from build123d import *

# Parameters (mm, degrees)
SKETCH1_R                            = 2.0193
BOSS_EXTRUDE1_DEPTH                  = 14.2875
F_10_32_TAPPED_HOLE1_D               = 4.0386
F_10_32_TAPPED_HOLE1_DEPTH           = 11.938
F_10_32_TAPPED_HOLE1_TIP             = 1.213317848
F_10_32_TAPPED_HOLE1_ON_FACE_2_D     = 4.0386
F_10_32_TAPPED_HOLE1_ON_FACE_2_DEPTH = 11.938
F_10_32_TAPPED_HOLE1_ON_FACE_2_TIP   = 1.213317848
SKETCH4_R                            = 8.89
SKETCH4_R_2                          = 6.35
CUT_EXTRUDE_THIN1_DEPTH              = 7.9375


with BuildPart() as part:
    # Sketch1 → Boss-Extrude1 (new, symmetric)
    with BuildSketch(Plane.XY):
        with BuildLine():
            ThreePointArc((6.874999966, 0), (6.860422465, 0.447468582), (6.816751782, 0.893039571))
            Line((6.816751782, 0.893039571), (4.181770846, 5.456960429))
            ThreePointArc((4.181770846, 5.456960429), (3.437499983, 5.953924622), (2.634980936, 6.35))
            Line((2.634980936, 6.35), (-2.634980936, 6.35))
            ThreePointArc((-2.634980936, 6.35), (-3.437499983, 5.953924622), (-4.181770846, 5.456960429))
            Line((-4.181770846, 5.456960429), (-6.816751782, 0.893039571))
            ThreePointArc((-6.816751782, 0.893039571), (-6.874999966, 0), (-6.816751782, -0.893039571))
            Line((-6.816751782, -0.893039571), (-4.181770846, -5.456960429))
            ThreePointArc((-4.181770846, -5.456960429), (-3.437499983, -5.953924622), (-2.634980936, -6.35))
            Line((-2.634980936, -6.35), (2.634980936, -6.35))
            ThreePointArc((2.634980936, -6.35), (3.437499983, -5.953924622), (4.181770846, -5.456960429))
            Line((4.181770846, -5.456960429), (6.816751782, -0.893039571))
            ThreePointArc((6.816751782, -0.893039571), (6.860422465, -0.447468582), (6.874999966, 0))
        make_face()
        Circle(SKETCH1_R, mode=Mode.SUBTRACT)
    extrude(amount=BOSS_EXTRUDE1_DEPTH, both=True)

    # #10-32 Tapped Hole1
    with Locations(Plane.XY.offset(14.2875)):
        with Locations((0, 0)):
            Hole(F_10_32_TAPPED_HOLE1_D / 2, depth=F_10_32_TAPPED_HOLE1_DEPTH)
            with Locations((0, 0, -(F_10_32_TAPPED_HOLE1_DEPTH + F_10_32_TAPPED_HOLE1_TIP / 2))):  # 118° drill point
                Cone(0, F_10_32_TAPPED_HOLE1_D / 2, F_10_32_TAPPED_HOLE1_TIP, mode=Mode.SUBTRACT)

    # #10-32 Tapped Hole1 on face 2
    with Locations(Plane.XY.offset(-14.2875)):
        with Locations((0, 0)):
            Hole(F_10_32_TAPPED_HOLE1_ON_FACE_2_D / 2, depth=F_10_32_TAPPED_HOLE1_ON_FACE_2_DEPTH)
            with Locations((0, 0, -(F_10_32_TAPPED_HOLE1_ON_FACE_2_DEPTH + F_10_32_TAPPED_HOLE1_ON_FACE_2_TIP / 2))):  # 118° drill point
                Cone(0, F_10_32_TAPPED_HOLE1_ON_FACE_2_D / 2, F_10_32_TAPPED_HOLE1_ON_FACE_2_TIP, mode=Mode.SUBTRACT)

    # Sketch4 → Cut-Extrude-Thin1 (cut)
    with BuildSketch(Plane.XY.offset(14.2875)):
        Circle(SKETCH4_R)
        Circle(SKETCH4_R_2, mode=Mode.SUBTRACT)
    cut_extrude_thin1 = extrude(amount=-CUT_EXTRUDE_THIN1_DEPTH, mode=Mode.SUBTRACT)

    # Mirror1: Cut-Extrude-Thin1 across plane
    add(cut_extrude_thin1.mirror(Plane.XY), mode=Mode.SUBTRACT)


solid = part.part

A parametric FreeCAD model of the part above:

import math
import FreeCAD as App
import Part
import Sketcher
Q = App.Units.Quantity

doc = App.newDocument("Part")
params = doc.addObject("Spreadsheet::Sheet", "Params")
for row, (alias, value) in enumerate([
    ("sketch1_diameter", "0.159 in"),
    ("pad1_length", "1.125 in"),
    ("sketch2_diameter", "0.159 in"),
    ("hole_diameter", "0.159 in"),
    ("hole_depth", "0.47 in"),
    ("sketch3_diameter", "0.159 in"),
    ("hole2_diameter", "0.159 in"),
    ("hole2_depth", "0.47 in"),
    ("sketch4_diameter", "0.7 in"),
    ("sketch4_diameter2", "0.5 in"),
    ("pocket1_length", "0.3125 in"),
], start=1):
    params.set(f"A{row}", alias)
    params.set(f"B{row}", "=" + value)
    params.setAlias(f"B{row}", alias)

body = doc.addObject("PartDesign::Body", "Body")

# Sketch on XY plane
sketch1 = body.newObject("Sketcher::SketchObject", "Sketch")
sketch1.AttachmentSupport = (doc.getObject("XY_Plane"), [""])
sketch1.MapMode = "FlatFace"
sketch1.addGeometry(Part.ArcOfCircle(Part.Circle(App.Vector(0, 0, 0), App.Vector(0, 0, 1), 6.9), math.radians(0), math.radians(7.46)), False)
sketch1.addGeometry(Part.LineSegment(App.Vector(6.8, 0.9, 0), App.Vector(4.2, 5.5, 0)), False)
sketch1.addGeometry(Part.ArcOfCircle(Part.Circle(App.Vector(0, 0, 0), App.Vector(0, 0, 1), 6.9), math.radians(52.54), math.radians(67.46)), False)
sketch1.addGeometry(Part.LineSegment(App.Vector(2.6, 6.3, 0), App.Vector(-2.6, 6.3, 0)), False)
sketch1.addGeometry(Part.ArcOfCircle(Part.Circle(App.Vector(0, 0, 0), App.Vector(0, 0, 1), 6.9), math.radians(112.54), math.radians(127.46)), False)
sketch1.addGeometry(Part.LineSegment(App.Vector(-4.2, 5.5, 0), App.Vector(-6.8, 0.9, 0)), False)
sketch1.addGeometry(Part.ArcOfCircle(Part.Circle(App.Vector(0, 0, 0), App.Vector(0, 0, 1), 6.9), math.radians(172.54), math.radians(187.46)), False)
sketch1.addGeometry(Part.LineSegment(App.Vector(-6.8, -0.9, 0), App.Vector(-4.2, -5.5, 0)), False)
sketch1.addGeometry(Part.ArcOfCircle(Part.Circle(App.Vector(0, 0, 0), App.Vector(0, 0, 1), 6.9), math.radians(-127.46), math.radians(-112.54)), False)
sketch1.addGeometry(Part.LineSegment(App.Vector(-2.6, -6.3, 0), App.Vector(2.6, -6.3, 0)), False)
sketch1.addGeometry(Part.ArcOfCircle(Part.Circle(App.Vector(0, 0, 0), App.Vector(0, 0, 1), 6.9), math.radians(-67.46), math.radians(-52.54)), False)
sketch1.addGeometry(Part.LineSegment(App.Vector(4.2, -5.5, 0), App.Vector(6.8, -0.9, 0)), False)
sketch1.addGeometry(Part.ArcOfCircle(Part.Circle(App.Vector(0, 0, 0), App.Vector(0, 0, 1), 6.9), math.radians(-7.46), math.radians(0)), False)
sketch1.addGeometry(Part.Circle(App.Vector(0, 0, 0), App.Vector(0, 0, 1), 2), False)
sketch1.addConstraint(Sketcher.Constraint("Coincident", 0, 2, 1, 1))
sketch1.addConstraint(Sketcher.Constraint("Coincident", 1, 2, 2, 1))
sketch1.addConstraint(Sketcher.Constraint("Coincident", 2, 2, 3, 1))
sketch1.addConstraint(Sketcher.Constraint("Coincident", 3, 2, 4, 1))
sketch1.addConstraint(Sketcher.Constraint("Coincident", 4, 2, 5, 1))
sketch1.addConstraint(Sketcher.Constraint("Coincident", 5, 2, 6, 1))
sketch1.addConstraint(Sketcher.Constraint("Coincident", 6, 2, 7, 1))
sketch1.addConstraint(Sketcher.Constraint("Coincident", 7, 2, 8, 1))
sketch1.addConstraint(Sketcher.Constraint("Coincident", 8, 2, 9, 1))
sketch1.addConstraint(Sketcher.Constraint("Coincident", 9, 2, 10, 1))
sketch1.addConstraint(Sketcher.Constraint("Coincident", 10, 2, 11, 1))
sketch1.addConstraint(Sketcher.Constraint("Coincident", 11, 2, 12, 1))
sketch1.addConstraint(Sketcher.Constraint("Tangent", 12, 2, 0, 1))
sketch1.addConstraint(Sketcher.Constraint("Horizontal", 3))
sketch1.addConstraint(Sketcher.Constraint("Horizontal", 9))
sketch1.addConstraint(Sketcher.Constraint("Coincident", 0, 3, -1, 1))
sketch1.addConstraint(Sketcher.Constraint("Coincident", 2, 3, -1, 1))
sketch1.addConstraint(Sketcher.Constraint("Coincident", 4, 3, -1, 1))
sketch1.addConstraint(Sketcher.Constraint("Coincident", 6, 3, -1, 1))
sketch1.addConstraint(Sketcher.Constraint("Coincident", 8, 3, -1, 1))
sketch1.addConstraint(Sketcher.Constraint("Coincident", 10, 3, -1, 1))
sketch1.addConstraint(Sketcher.Constraint("Coincident", 13, 3, -1, 1))
sketch1.addConstraint(Sketcher.Constraint("Equal", 0, 2))
sketch1.addConstraint(Sketcher.Constraint("Equal", 2, 4))
sketch1.addConstraint(Sketcher.Constraint("Equal", 4, 6))
sketch1.addConstraint(Sketcher.Constraint("Equal", 6, 8))
sketch1.addConstraint(Sketcher.Constraint("Equal", 8, 10))
sketch1.addConstraint(Sketcher.Constraint("Equal", 10, 12))
sketch1.addConstraint(Sketcher.Constraint("PointOnObject", 12, 2, -1))
sketch1.addConstraint(Sketcher.Constraint("Parallel", 1, 7))
sketch1.addConstraint(Sketcher.Constraint("Parallel", 5, 11))
sketch1.addConstraint(Sketcher.Constraint("Horizontal", 1, 2, 4, 2))
sketch1.addConstraint(Sketcher.Constraint("Horizontal", 0, 2, 5, 2))
sketch1.addConstraint(Sketcher.Constraint("Horizontal", 7, 2, 10, 2))
sketch1.addConstraint(Sketcher.Constraint("Vertical", 5, 2, 6, 2))
sketch1.addConstraint(Sketcher.Constraint("Vertical", 3, 2, 8, 2))
sketch1.addConstraint(Sketcher.Constraint("Diameter", 13, Q("0.159 in")))
sketch1.addConstraint(Sketcher.Constraint("Angle", 1, Q("120 deg")))
sketch1.addConstraint(Sketcher.Constraint("DistanceY", -1, 1, 2, 2, Q("0.25 in")))
sketch1.addConstraint(Sketcher.Constraint("Radius", 0, 6.875))
sketch1.addConstraint(Sketcher.Constraint("Distance", 1, 5.269962))
sketch1.setExpression("Constraints[36]", "Params.sketch1_diameter")
pad1 = body.newObject("PartDesign::Pad", "Pad")
pad1.Profile = sketch1
pad1.setExpression("Length", "Params.pad1_length")
pad1.Midplane = True

# Sketch on XY plane
sketch2 = body.newObject("Sketcher::SketchObject", "Sketch001")
sketch2.AttachmentSupport = (doc.getObject("XY_Plane"), [""])
sketch2.MapMode = "FlatFace"
sketch2.AttachmentOffset = App.Placement(App.Vector(0, 0, 0.5625 * 25.4), App.Rotation())
sketch2.addGeometry(Part.Circle(App.Vector(0, 0, 0), App.Vector(0, 0, 1), 2), False)
sketch2.addConstraint(Sketcher.Constraint("Coincident", 0, 3, -1, 1))
sketch2.addConstraint(Sketcher.Constraint("Diameter", 0, Q("0.159 in")))
sketch2.setExpression("Constraints[1]", "Params.sketch2_diameter")
doc.recompute()
hole = body.newObject("PartDesign::Hole", "Hole")
hole.Profile = sketch2
hole.ThreadType = "None"
hole.setExpression("Diameter", "Params.hole_diameter")
hole.DepthType = "Dimension"
hole.setExpression("Depth", "Params.hole_depth")
hole.DrillPoint = "Angled"
hole.DrillPointAngle = 118

# Sketch on XY plane
sketch3 = body.newObject("Sketcher::SketchObject", "Sketch002")
sketch3.AttachmentSupport = (doc.getObject("XY_Plane"), [""])
sketch3.MapMode = "FlatFace"
sketch3.AttachmentOffset = App.Placement(App.Vector(0, 0, -0.5625 * 25.4), App.Rotation())
sketch3.addGeometry(Part.Circle(App.Vector(0, 0, 0), App.Vector(0, 0, 1), 2), False)
sketch3.addConstraint(Sketcher.Constraint("Coincident", 0, 3, -1, 1))
sketch3.addConstraint(Sketcher.Constraint("Diameter", 0, Q("0.159 in")))
sketch3.setExpression("Constraints[1]", "Params.sketch3_diameter")
doc.recompute()
hole2 = body.newObject("PartDesign::Hole", "Hole001")
hole2.Profile = sketch3
hole2.ThreadType = "None"
hole2.setExpression("Diameter", "Params.hole2_diameter")
hole2.DepthType = "Dimension"
hole2.setExpression("Depth", "Params.hole2_depth")
hole2.DrillPoint = "Angled"
hole2.DrillPointAngle = 118

# Sketch on XY plane
sketch4 = body.newObject("Sketcher::SketchObject", "Sketch003")
sketch4.AttachmentSupport = (doc.getObject("XY_Plane"), [""])
sketch4.MapMode = "FlatFace"
sketch4.AttachmentOffset = App.Placement(App.Vector(0, 0, 0.5625 * 25.4), App.Rotation())
sketch4.addGeometry(Part.Circle(App.Vector(0, 0, 0), App.Vector(0, 0, 1), 9), False)
sketch4.addGeometry(Part.Circle(App.Vector(0, 0, 0), App.Vector(0, 0, 1), 6), False)
sketch4.addConstraint(Sketcher.Constraint("Coincident", 0, 3, -1, 1))
sketch4.addConstraint(Sketcher.Constraint("Coincident", 1, 3, -1, 1))
sketch4.addConstraint(Sketcher.Constraint("Diameter", 0, Q("0.7 in")))
sketch4.addConstraint(Sketcher.Constraint("Diameter", 1, Q("0.5 in")))
sketch4.setExpression("Constraints[2]", "Params.sketch4_diameter")
sketch4.setExpression("Constraints[3]", "Params.sketch4_diameter2")
pocket1 = body.newObject("PartDesign::Pocket", "Pocket")
pocket1.Profile = sketch4
pocket1.setExpression("Length", "Params.pocket1_length")
doc.recompute()

mirrored = body.newObject("PartDesign::Mirrored", "Mirrored")
mirrored.Originals = [pocket1]
mirrored.MirrorPlane = (doc.getObject("XY_Plane"), [""])
body.Tip = mirrored

doc.recompute()
